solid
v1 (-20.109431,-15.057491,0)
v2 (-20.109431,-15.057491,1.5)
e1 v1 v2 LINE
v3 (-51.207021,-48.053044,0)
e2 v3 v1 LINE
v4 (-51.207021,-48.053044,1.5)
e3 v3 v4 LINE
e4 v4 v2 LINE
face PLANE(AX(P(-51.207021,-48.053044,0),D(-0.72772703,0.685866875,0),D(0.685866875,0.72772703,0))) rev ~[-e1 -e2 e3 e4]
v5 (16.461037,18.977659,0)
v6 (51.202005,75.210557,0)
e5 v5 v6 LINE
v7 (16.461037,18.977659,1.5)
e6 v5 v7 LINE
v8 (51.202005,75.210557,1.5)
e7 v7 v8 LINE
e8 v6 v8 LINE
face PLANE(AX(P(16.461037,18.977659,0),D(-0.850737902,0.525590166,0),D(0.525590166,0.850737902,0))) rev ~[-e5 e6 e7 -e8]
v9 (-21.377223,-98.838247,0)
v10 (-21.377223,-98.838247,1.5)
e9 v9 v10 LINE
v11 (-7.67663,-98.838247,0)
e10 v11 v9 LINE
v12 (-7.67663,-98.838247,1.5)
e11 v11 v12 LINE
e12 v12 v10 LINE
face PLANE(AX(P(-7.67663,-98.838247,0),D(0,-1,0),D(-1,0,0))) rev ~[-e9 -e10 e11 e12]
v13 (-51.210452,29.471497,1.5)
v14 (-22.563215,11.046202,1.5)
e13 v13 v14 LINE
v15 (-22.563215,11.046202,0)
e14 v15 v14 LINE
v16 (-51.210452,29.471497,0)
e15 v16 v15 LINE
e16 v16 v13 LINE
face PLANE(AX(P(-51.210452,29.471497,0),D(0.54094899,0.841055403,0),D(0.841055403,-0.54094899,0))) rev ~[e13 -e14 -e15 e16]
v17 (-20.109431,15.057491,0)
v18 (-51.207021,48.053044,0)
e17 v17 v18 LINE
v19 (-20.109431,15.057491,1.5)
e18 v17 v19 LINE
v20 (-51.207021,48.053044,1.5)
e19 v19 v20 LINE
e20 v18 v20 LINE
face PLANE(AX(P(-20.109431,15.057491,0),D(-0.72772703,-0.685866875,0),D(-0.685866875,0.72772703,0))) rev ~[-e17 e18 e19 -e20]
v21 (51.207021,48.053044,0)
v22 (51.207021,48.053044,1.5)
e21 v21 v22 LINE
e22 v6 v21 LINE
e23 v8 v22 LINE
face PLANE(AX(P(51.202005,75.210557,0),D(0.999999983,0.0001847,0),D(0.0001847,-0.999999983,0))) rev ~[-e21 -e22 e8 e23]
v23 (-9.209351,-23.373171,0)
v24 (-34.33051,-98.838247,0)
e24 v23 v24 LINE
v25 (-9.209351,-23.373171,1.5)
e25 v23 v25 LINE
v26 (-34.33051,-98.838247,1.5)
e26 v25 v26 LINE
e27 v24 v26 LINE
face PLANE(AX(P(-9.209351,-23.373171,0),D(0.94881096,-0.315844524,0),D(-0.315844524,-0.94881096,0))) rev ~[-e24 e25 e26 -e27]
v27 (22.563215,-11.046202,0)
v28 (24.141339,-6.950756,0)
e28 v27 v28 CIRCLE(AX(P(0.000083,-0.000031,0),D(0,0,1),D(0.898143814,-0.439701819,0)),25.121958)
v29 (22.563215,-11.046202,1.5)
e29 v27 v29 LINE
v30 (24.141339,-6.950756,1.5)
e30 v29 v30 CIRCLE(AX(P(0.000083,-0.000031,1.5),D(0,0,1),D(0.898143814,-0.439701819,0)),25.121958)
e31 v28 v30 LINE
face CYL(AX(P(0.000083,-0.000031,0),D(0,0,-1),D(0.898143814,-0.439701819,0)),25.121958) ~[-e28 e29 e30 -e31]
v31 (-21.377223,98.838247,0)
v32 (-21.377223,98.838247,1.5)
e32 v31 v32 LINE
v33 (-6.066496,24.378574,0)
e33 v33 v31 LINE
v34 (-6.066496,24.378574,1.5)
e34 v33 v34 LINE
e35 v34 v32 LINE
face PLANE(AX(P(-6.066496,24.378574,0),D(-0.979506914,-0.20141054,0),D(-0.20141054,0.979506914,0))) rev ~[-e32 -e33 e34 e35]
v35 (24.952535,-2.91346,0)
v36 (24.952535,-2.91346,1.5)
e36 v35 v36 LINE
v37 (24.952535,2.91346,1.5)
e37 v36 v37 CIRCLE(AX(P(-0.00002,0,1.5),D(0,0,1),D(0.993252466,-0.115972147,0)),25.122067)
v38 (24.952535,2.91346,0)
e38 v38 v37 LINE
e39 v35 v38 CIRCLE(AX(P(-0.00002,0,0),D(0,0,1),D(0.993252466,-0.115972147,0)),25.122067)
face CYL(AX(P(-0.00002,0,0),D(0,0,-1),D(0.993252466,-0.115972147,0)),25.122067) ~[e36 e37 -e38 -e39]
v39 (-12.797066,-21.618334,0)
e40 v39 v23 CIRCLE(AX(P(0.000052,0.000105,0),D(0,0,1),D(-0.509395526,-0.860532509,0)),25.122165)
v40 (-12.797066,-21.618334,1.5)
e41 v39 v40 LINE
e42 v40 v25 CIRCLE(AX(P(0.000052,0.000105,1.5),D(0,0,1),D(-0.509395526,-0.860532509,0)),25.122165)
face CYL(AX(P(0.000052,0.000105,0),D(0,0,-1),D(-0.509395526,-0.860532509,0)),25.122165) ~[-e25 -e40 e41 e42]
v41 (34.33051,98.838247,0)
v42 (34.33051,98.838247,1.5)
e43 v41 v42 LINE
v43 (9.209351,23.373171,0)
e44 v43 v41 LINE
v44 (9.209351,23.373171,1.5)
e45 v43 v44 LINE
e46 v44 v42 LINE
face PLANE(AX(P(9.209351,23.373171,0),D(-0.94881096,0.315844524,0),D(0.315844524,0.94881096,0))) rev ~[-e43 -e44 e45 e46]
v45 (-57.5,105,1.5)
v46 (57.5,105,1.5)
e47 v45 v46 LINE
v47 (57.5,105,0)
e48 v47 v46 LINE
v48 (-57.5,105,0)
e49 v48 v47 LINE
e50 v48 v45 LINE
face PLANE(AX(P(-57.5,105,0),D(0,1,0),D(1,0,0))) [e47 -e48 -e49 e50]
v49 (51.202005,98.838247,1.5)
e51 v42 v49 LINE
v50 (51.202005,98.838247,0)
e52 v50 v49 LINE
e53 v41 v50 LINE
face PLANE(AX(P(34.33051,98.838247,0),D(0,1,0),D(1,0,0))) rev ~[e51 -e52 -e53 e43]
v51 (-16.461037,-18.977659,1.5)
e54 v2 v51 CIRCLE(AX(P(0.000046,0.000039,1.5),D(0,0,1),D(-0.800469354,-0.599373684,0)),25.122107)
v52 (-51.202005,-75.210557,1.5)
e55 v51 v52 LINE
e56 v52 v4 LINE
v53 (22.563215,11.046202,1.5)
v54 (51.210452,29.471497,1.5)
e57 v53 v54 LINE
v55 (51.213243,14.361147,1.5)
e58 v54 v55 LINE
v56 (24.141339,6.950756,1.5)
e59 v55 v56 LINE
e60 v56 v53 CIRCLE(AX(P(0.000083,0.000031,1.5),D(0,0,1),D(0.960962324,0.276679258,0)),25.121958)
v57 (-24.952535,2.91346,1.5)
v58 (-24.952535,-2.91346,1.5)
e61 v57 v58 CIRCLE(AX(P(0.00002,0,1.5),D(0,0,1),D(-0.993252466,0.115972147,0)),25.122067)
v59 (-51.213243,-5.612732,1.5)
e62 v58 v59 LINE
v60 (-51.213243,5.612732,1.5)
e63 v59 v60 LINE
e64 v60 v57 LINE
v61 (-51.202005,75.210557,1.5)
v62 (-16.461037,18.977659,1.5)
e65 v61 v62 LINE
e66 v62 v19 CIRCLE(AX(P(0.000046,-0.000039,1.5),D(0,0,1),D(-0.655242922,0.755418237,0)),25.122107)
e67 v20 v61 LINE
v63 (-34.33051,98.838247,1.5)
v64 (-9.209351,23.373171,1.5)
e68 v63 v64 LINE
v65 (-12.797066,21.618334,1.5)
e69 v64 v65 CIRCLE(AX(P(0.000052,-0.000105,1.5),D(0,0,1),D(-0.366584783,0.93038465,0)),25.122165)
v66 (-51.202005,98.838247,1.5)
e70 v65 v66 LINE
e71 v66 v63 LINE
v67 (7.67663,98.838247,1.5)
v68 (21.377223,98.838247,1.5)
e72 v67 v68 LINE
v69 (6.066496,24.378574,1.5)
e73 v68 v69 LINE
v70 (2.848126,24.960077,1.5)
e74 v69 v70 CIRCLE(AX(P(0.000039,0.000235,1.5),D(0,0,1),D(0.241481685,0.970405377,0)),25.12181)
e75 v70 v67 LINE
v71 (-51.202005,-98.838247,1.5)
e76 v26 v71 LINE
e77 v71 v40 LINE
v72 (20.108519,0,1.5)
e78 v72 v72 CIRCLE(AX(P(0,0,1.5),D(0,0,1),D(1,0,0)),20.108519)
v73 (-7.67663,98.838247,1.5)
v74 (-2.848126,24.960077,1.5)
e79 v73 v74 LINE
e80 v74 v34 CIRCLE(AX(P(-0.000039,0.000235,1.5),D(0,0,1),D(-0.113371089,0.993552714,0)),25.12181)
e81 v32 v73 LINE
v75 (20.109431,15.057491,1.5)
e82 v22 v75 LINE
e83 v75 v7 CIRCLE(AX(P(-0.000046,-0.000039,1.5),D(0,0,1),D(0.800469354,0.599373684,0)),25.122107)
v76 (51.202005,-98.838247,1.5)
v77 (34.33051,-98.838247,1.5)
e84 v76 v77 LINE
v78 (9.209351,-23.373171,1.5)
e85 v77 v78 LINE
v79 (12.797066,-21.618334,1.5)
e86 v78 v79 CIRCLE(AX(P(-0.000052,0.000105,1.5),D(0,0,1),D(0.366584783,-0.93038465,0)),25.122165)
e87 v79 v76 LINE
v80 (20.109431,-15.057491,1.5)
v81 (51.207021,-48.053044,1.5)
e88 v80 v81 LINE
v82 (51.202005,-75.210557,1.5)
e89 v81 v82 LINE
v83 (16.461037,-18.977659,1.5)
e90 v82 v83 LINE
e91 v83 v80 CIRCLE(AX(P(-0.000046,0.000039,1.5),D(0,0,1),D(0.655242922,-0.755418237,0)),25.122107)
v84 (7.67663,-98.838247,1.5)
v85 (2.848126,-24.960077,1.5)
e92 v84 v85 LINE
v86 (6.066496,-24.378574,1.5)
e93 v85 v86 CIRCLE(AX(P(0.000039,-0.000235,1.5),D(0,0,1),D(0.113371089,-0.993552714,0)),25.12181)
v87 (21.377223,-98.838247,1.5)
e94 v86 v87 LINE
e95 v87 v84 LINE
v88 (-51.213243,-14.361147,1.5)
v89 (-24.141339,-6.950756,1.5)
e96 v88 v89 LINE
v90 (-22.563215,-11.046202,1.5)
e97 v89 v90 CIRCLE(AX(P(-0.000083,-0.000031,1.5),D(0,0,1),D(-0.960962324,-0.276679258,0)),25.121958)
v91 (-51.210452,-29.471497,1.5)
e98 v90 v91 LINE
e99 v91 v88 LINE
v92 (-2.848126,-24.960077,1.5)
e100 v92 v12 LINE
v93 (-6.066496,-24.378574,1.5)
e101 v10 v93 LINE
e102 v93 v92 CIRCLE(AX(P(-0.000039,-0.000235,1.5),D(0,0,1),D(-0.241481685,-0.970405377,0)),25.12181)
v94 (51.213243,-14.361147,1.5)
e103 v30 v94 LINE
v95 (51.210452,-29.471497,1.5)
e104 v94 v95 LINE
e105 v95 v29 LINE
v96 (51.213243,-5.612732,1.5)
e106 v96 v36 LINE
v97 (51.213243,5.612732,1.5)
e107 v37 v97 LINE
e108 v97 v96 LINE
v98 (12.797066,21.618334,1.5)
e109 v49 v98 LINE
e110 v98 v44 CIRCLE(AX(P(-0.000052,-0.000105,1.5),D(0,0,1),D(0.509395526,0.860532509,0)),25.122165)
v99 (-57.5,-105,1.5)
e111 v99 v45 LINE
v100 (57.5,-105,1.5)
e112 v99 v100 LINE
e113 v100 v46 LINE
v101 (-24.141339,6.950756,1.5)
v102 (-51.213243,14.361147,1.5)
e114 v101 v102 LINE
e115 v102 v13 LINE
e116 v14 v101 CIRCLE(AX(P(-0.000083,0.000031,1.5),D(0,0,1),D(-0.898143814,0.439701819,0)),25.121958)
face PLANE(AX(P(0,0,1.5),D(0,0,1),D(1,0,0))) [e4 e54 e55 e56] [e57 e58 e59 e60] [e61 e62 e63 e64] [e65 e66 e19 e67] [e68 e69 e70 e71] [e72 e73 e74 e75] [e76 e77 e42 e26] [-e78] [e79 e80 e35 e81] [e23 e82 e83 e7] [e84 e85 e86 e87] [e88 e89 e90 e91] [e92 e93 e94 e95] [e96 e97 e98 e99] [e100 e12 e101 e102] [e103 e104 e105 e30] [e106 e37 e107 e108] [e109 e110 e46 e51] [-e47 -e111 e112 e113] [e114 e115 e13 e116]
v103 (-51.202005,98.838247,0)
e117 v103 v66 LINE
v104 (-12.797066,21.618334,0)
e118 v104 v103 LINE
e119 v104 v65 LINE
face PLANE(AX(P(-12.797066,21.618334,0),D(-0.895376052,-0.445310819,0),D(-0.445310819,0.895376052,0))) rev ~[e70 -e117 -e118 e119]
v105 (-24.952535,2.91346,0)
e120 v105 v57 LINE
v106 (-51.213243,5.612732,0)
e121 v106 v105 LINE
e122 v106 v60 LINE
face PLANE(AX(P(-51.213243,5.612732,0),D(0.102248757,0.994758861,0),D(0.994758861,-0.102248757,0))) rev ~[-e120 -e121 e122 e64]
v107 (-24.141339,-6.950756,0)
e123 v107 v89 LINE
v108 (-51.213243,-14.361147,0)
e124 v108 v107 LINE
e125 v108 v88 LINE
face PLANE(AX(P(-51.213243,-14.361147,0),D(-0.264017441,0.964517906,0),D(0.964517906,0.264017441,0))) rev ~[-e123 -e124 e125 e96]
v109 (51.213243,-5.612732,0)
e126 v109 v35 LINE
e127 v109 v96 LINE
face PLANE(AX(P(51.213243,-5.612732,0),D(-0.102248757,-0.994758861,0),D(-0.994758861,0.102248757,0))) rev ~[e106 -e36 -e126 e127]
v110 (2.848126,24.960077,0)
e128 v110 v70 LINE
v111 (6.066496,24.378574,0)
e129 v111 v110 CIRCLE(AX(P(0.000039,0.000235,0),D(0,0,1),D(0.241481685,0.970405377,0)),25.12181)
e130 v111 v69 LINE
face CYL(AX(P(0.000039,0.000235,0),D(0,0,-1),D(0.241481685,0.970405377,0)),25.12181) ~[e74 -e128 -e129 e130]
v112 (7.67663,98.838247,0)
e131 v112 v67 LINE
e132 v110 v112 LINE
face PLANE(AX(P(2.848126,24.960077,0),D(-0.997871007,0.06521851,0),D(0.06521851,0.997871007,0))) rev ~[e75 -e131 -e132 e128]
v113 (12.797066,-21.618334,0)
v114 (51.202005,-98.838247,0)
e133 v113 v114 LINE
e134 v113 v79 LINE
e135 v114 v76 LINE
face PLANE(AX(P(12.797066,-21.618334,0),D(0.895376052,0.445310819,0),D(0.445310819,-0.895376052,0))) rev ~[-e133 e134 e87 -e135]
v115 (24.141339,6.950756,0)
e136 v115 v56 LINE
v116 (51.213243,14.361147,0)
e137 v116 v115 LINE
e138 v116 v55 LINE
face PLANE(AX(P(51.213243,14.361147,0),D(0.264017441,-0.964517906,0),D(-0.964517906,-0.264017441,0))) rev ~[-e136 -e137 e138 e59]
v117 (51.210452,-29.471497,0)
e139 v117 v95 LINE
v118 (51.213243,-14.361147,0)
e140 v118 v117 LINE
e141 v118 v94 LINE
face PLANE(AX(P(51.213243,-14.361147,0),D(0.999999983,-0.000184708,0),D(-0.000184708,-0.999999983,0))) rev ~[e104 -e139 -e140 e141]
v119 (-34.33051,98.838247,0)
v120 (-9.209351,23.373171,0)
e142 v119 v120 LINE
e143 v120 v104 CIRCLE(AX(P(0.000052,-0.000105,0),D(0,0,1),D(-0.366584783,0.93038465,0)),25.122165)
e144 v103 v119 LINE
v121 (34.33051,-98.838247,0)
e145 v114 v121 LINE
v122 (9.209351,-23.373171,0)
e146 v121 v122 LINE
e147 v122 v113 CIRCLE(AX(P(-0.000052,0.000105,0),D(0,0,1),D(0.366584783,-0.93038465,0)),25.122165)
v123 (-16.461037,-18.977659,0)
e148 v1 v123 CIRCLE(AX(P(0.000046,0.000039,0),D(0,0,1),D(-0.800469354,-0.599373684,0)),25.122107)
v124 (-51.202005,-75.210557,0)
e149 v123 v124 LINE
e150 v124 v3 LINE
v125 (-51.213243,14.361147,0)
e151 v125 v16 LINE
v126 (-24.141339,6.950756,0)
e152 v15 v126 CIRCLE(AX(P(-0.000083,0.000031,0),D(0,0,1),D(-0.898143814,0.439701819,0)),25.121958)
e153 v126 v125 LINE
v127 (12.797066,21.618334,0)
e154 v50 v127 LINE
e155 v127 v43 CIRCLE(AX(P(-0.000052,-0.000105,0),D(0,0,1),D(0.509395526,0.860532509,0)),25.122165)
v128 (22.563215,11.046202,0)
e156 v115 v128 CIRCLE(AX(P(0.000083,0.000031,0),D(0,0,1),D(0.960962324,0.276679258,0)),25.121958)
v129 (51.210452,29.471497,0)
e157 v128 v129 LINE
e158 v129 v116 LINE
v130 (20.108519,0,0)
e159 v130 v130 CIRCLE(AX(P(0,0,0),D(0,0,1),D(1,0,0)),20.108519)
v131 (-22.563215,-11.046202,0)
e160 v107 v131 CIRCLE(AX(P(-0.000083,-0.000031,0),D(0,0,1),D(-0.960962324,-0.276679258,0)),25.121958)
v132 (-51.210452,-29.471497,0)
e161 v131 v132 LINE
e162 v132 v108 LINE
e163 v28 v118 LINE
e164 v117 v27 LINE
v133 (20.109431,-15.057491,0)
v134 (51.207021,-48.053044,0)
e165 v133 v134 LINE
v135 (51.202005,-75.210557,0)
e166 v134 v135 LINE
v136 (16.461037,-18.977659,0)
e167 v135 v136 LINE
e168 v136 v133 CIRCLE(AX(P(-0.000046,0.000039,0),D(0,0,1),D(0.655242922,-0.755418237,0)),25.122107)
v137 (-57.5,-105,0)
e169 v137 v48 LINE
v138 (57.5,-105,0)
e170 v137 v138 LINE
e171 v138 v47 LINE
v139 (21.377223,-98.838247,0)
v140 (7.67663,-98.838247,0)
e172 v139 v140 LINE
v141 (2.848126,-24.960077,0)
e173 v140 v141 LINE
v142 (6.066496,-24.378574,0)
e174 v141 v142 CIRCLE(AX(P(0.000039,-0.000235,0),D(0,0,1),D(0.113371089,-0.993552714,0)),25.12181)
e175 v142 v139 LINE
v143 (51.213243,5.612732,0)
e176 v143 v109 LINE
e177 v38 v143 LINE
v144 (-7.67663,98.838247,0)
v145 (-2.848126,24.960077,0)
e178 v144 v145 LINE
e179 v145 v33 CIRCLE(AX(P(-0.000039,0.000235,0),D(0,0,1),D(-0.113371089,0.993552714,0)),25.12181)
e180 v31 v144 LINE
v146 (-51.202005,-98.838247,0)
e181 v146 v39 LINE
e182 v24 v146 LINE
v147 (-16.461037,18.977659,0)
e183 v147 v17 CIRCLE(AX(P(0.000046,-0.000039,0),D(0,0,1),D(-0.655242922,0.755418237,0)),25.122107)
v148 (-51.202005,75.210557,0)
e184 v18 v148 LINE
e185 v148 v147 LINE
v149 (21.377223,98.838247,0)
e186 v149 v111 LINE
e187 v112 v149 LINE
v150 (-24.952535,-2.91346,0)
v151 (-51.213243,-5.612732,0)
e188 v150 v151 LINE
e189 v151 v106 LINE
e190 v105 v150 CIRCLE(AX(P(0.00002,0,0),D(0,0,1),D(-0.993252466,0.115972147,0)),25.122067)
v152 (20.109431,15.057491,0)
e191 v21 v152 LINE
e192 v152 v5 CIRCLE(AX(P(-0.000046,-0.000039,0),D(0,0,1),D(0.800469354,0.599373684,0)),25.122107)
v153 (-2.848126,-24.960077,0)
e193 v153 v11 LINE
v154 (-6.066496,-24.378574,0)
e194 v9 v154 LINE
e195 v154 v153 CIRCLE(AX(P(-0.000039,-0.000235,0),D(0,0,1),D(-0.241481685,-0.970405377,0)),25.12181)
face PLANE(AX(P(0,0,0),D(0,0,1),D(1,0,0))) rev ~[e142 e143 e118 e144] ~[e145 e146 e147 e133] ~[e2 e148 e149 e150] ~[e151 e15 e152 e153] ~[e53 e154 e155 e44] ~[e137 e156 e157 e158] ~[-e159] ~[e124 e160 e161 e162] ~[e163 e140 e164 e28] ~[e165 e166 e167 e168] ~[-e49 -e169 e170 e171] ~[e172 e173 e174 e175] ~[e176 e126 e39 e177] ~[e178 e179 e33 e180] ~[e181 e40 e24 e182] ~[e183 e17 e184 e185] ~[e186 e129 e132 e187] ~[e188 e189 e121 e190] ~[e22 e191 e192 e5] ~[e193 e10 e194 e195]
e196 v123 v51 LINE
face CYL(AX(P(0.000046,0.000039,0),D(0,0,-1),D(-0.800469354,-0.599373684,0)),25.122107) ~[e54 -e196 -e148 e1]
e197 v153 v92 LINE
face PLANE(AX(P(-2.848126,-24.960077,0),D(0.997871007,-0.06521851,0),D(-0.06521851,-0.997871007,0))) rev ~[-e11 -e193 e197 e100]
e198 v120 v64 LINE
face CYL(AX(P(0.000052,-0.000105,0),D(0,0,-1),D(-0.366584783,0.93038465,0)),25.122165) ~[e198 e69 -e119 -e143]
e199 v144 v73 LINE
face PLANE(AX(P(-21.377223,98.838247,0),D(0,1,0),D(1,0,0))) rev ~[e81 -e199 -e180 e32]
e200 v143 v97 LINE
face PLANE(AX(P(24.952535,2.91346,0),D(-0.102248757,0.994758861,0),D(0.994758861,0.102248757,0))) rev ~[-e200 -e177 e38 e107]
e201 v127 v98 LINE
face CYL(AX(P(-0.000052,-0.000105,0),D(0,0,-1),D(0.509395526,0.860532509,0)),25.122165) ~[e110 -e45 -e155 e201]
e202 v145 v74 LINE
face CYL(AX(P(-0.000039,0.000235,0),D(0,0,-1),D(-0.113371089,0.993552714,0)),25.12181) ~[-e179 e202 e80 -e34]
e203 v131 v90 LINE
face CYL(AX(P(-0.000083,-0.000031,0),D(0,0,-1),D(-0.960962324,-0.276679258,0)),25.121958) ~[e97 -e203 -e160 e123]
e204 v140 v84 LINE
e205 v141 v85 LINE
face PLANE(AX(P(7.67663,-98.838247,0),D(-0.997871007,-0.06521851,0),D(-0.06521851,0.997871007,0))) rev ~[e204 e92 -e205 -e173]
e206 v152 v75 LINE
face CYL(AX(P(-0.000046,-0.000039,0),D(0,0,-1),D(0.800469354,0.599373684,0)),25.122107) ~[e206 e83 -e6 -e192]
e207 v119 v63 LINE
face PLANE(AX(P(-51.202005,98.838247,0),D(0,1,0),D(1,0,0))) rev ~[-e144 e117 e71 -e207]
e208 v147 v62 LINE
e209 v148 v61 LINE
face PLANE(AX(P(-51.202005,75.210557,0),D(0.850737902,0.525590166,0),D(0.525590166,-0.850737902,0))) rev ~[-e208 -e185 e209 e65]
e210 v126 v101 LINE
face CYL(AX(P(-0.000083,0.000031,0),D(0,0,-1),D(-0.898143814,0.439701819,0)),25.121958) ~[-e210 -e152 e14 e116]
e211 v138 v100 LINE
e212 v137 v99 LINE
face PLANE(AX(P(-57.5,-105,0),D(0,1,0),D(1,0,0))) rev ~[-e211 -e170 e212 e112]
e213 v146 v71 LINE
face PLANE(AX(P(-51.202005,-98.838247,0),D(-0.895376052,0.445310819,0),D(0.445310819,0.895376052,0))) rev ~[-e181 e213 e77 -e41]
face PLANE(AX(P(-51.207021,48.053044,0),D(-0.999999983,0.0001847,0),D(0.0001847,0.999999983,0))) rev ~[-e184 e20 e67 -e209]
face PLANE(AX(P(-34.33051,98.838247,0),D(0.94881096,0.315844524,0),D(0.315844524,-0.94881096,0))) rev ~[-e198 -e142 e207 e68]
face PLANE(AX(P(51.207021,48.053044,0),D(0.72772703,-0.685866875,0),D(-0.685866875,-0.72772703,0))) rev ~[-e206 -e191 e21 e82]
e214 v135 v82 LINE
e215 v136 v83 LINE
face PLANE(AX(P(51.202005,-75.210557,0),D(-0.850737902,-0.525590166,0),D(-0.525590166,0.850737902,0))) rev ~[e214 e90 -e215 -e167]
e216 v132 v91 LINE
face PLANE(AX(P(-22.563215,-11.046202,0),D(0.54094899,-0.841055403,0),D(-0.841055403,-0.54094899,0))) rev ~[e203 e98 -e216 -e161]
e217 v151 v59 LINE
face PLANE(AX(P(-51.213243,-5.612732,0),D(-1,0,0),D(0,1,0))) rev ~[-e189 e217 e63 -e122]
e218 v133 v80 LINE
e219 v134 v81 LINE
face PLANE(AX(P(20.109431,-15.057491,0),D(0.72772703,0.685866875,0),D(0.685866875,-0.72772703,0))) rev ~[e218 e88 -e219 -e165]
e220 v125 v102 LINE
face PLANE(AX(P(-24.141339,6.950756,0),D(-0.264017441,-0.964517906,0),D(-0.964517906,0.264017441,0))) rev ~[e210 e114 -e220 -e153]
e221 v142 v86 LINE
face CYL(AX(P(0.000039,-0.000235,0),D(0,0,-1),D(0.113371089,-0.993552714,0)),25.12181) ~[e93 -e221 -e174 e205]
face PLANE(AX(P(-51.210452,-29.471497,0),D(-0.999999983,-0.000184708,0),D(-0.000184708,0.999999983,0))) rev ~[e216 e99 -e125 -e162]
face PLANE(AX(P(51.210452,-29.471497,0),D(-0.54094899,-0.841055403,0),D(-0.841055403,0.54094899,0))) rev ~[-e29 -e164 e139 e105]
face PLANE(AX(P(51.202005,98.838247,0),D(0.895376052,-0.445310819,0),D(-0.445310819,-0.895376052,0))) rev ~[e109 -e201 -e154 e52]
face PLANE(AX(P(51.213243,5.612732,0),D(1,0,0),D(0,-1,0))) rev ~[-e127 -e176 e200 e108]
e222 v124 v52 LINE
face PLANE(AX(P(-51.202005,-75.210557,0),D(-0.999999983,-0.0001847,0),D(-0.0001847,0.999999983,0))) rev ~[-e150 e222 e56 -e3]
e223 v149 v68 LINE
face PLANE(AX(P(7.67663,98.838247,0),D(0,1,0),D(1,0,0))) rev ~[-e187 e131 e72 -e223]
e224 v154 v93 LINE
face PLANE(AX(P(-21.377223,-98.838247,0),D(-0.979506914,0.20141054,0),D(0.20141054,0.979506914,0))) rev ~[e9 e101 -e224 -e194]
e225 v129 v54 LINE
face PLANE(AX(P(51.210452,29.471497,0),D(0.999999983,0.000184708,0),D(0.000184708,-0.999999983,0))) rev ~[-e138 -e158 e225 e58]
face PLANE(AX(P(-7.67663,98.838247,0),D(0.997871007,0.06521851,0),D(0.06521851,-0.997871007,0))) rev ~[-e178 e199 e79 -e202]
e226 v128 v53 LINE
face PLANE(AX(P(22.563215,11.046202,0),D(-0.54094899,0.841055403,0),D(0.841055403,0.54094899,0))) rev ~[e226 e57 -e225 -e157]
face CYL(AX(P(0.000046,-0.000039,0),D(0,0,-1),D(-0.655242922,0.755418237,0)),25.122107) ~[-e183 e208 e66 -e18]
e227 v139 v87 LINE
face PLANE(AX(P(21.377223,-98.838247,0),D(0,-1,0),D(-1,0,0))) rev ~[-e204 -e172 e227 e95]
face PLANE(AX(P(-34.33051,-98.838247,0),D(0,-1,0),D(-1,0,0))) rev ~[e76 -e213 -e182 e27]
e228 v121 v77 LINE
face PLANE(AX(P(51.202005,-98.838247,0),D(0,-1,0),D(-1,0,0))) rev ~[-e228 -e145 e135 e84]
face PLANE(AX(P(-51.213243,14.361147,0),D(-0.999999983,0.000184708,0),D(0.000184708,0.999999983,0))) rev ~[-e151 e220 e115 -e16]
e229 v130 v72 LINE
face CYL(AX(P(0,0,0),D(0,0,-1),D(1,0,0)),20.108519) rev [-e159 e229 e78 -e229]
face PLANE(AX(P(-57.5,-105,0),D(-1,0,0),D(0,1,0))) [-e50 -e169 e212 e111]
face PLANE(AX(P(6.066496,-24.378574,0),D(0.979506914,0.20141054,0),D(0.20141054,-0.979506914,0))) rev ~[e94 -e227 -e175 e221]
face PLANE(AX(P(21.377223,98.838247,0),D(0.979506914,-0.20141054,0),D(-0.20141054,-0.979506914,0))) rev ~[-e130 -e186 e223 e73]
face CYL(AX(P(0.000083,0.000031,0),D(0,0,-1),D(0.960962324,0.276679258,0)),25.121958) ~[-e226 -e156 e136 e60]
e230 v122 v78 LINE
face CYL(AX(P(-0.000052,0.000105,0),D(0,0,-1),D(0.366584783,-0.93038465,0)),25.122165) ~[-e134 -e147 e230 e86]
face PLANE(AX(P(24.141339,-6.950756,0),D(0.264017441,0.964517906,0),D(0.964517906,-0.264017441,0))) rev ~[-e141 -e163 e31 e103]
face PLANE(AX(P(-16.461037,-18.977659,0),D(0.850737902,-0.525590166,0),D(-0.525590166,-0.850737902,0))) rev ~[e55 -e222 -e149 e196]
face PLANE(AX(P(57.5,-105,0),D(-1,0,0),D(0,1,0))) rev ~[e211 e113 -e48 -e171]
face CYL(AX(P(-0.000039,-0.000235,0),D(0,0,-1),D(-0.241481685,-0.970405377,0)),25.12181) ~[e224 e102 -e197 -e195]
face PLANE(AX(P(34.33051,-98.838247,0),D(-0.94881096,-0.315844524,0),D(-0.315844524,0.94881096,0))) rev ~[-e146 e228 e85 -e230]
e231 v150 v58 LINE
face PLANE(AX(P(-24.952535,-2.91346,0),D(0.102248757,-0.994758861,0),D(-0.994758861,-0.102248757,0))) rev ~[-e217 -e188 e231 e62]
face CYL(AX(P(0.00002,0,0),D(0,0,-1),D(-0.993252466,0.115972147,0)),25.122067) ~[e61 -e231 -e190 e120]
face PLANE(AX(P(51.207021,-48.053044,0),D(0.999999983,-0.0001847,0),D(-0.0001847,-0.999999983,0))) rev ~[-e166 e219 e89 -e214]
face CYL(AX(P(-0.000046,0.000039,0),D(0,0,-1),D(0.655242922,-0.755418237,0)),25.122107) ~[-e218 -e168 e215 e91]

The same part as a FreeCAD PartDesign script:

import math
import FreeCAD as App
import Part
import Sketcher


def add_polygon(sketch, points):
    """Adds a closed chain of lines whose ends are joined by coincident constraints."""
    first, n = sketch.GeometryCount, len(points)
    for a, b in zip(points, points[1:] + points[:1]):
        sketch.addGeometry(Part.LineSegment(App.Vector(*a, 0), App.Vector(*b, 0)), False)
    for i in range(n):
        sketch.addConstraint(Sketcher.Constraint("Coincident", first + i, 2, first + (i + 1) % n, 1))

doc = App.newDocument("Part")
body = doc.addObject("PartDesign::Body", "Body")

# Sketch on XY plane
sketch1 = doc.addObject("Sketcher::SketchObject", "Sketch")
body.addObject(sketch1)
sketch1.AttachmentSupport = (doc.XY_Plane, [""])
sketch1.MapMode = "FlatFace"
add_polygon(sketch1, [(-57.5, 105), (-57.5, -105), (57.5, -105), (57.5, 105)])  # lines 0-3
sketch1.addGeometry(Part.LineSegment(App.Vector(-34.33051, -98.838247, 0), App.Vector(-51.202005, -98.838247, 0)), False)  # 4
sketch1.addGeometry(Part.LineSegment(App.Vector(-51.202005, -98.838247, 0), App.Vector(-12.797066, -21.618334, 0)), False)  # 5
sketch1.addGeometry(Part.ArcOfCircle(Part.Circle(App.Vector(0.000052, 0.000105, 0), App.Vector(0, 0, 1), 25.122165), math.radians(-120.623574), math.radians(-111.505146)), False)  # 6
sketch1.addGeometry(Part.LineSegment(App.Vector(-9.209351, -23.373171, 0), App.Vector(-34.33051, -98.838247, 0)), False)  # 7
sketch1.addGeometry(Part.LineSegment(App.Vector(-7.67663, -98.838247, 0), App.Vector(-21.377223, -98.838247, 0)), False)  # 8
sketch1.addGeometry(Part.LineSegment(App.Vector(-21.377223, -98.838247, 0), App.Vector(-6.066496, -24.378574, 0)), False)  # 9
sketch1.addGeometry(Part.ArcOfCircle(Part.Circle(App.Vector(-0.000039, -0.000235, 0), App.Vector(0, 0, 1), 25.12181), math.radians(-103.974007), math.radians(-96.509681)), False)  # 10
sketch1.addGeometry(Part.LineSegment(App.Vector(-2.848126, -24.960077, 0), App.Vector(-7.67663, -98.838247, 0)), False)  # 11
sketch1.addGeometry(Part.LineSegment(App.Vector(-51.207021, -48.053044, 0), App.Vector(-20.109431, -15.057491, 0)), False)  # 12
sketch1.addGeometry(Part.ArcOfCircle(Part.Circle(App.Vector(0.000046, 0.000039, 0), App.Vector(0, 0, 1), 25.122107), math.radians(-143.174946), math.radians(-130.938072)), False)  # 13
sketch1.addGeometry(Part.LineSegment(App.Vector(-16.461037, -18.977659, 0), App.Vector(-51.202005, -75.210557, 0)), False)  # 14
sketch1.addGeometry(Part.LineSegment(App.Vector(-51.202005, -75.210557, 0), App.Vector(-51.207021, -48.053044, 0)), False)  # 15
sketch1.addGeometry(Part.LineSegment(App.Vector(-51.213243, -14.361147, 0), App.Vector(-24.141339, -6.950756, 0)), False)  # 16
sketch1.addGeometry(Part.ArcOfCircle(Part.Circle(App.Vector(-0.000083, -0.000031, 0), App.Vector(0, 0, 1), 25.121958), math.radians(-163.937888), math.radians(-153.915142)), False)  # 17
sketch1.addGeometry(Part.LineSegment(App.Vector(-22.563215, -11.046202, 0), App.Vector(-51.210452, -29.471497, 0)), False)  # 18
sketch1.addGeometry(Part.LineSegment(App.Vector(-51.210452, -29.471497, 0), App.Vector(-51.213243, -14.361147, 0)), False)  # 19
sketch1.addGeometry(Part.LineSegment(App.Vector(21.377223, -98.838247, 0), App.Vector(7.67663, -98.838247, 0)), False)  # 20
sketch1.addGeometry(Part.LineSegment(App.Vector(7.67663, -98.838247, 0), App.Vector(2.848126, -24.960077, 0)), False)  # 21
sketch1.addGeometry(Part.ArcOfCircle(Part.Circle(App.Vector(0.000039, -0.000235, 0), App.Vector(0, 0, 1), 25.12181), math.radians(-83.490319), math.radians(-76.025993)), False)  # 22
sketch1.addGeometry(Part.LineSegment(App.Vector(6.066496, -24.378574, 0), App.Vector(21.377223, -98.838247, 0)), False)  # 23
sketch1.addGeometry(Part.LineSegment(App.Vector(51.202005, -98.838247, 0), App.Vector(34.33051, -98.838247, 0)), False)  # 24
sketch1.addGeometry(Part.LineSegment(App.Vector(34.33051, -98.838247, 0), App.Vector(9.209351, -23.373171, 0)), False)  # 25
sketch1.addGeometry(Part.ArcOfCircle(Part.Circle(App.Vector(-0.000052, 0.000105, 0), App.Vector(0, 0, 1), 25.122165), math.radians(-68.494854), math.radians(-59.376426)), False)  # 26
sketch1.addGeometry(Part.LineSegment(App.Vector(12.797066, -21.618334, 0), App.Vector(51.202005, -98.838247, 0)), False)  # 27
sketch1.addGeometry(Part.LineSegment(App.Vector(51.207021, -48.053044, 0), App.Vector(51.202005, -75.210557, 0)), False)  # 28
sketch1.addGeometry(Part.LineSegment(App.Vector(51.202005, -75.210557, 0), App.Vector(16.461037, -18.977659, 0)), False)  # 29
sketch1.addGeometry(Part.ArcOfCircle(Part.Circle(App.Vector(-0.000046, 0.000039, 0), App.Vector(0, 0, 1), 25.122107), math.radians(-49.061928), math.radians(-36.825054)), False)  # 30
sketch1.addGeometry(Part.LineSegment(App.Vector(20.109431, -15.057491, 0), App.Vector(51.207021, -48.053044, 0)), False)  # 31
sketch1.addGeometry(Part.LineSegment(App.Vector(51.213243, -14.361147, 0), App.Vector(51.210452, -29.471497, 0)), False)  # 32
sketch1.addGeometry(Part.LineSegment(App.Vector(51.210452, -29.471497, 0), App.Vector(22.563215, -11.046202, 0)), False)  # 33
sketch1.addGeometry(Part.ArcOfCircle(Part.Circle(App.Vector(0.000083, -0.000031, 0), App.Vector(0, 0, 1), 25.121958), math.radians(-26.084858), math.radians(-16.062112)), False)  # 34
sketch1.addGeometry(Part.LineSegment(App.Vector(24.141339, -6.950756, 0), App.Vector(51.213243, -14.361147, 0)), False)  # 35
sketch1.addGeometry(Part.LineSegment(App.Vector(-51.213243, 5.612732, 0), App.Vector(-24.952535, 2.91346, 0)), False)  # 36
sketch1.addGeometry(Part.ArcOfCircle(Part.Circle(App.Vector(0.00002, 0, 0), App.Vector(0, 0, 1), 25.122067), math.radians(173.3403), math.radians(186.6597)), False)  # 37
sketch1.addGeometry(Part.LineSegment(App.Vector(-24.952535, -2.91346, 0), App.Vector(-51.213243, -5.612732, 0)), False)  # 38
sketch1.addGeometry(Part.LineSegment(App.Vector(-51.213243, -5.612732, 0), App.Vector(-51.213243, 5.612732, 0)), False)  # 39
sketch1.addGeometry(Part.LineSegment(App.Vector(-51.213243, 14.361147, 0), App.Vector(-51.210452, 29.471497, 0)), False)  # 40
sketch1.addGeometry(Part.LineSegment(App.Vector(-51.210452, 29.471497, 0), App.Vector(-22.563215, 11.046202, 0)), False)  # 41
sketch1.addGeometry(Part.ArcOfCircle(Part.Circle(App.Vector(-0.000083, 0.000031, 0), App.Vector(0, 0, 1), 25.121958), math.radians(153.915142), math.radians(163.937888)), False)  # 42
sketch1.addGeometry(Part.LineSegment(App.Vector(-24.141339, 6.950756, 0), App.Vector(-51.213243, 14.361147, 0)), False)  # 43
sketch1.addGeometry(Part.LineSegment(App.Vector(-51.207021, 48.053044, 0), App.Vector(-51.202005, 75.210557, 0)), False)  # 44
sketch1.addGeometry(Part.LineSegment(App.Vector(-51.202005, 75.210557, 0), App.Vector(-16.461037, 18.977659, 0)), False)  # 45
sketch1.addGeometry(Part.ArcOfCircle(Part.Circle(App.Vector(0.000046, -0.000039, 0), App.Vector(0, 0, 1), 25.122107), math.radians(130.938072), math.radians(143.174946)), False)  # 46
sketch1.addGeometry(Part.LineSegment(App.Vector(-20.109431, 15.057491, 0), App.Vector(-51.207021, 48.053044, 0)), False)  # 47
sketch1.addGeometry(Part.LineSegment(App.Vector(-51.202005, 98.838247, 0), App.Vector(-34.33051, 98.838247, 0)), False)  # 48
sketch1.addGeometry(Part.LineSegment(App.Vector(-34.33051, 98.838247, 0), App.Vector(-9.209351, 23.373171, 0)), False)  # 49
sketch1.addGeometry(Part.ArcOfCircle(Part.Circle(App.Vector(0.000052, -0.000105, 0), App.Vector(0, 0, 1), 25.122165), math.radians(111.505146), math.radians(120.623574)), False)  # 50
sketch1.addGeometry(Part.LineSegment(App.Vector(-12.797066, 21.618334, 0), App.Vector(-51.202005, 98.838247, 0)), False)  # 51
sketch1.addGeometry(Part.LineSegment(App.Vector(-21.377223, 98.838247, 0), App.Vector(-7.67663, 98.838247, 0)), False)  # 52
sketch1.addGeometry(Part.LineSegment(App.Vector(-7.67663, 98.838247, 0), App.Vector(-2.848126, 24.960077, 0)), False)  # 53
sketch1.addGeometry(Part.ArcOfCircle(Part.Circle(App.Vector(-0.000039, 0.000235, 0), App.Vector(0, 0, 1), 25.12181), math.radians(96.509681), math.radians(103.974007)), False)  # 54
sketch1.addGeometry(Part.LineSegment(App.Vector(-6.066496, 24.378574, 0), App.Vector(-21.377223, 98.838247, 0)), False)  # 55
sketch1.addGeometry(Part.Circle(App.Vector(0, 0, 0), App.Vector(0, 0, 1), 20.108519), False)  # 56
sketch1.addGeometry(Part.LineSegment(App.Vector(51.213243, -5.612732, 0), App.Vector(24.952535, -2.91346, 0)), False)  # 57
sketch1.addGeometry(Part.ArcOfCircle(Part.Circle(App.Vector(-0.00002, 0, 0), App.Vector(0, 0, 1), 25.122067), math.radians(-6.6597), math.radians(6.6597)), False)  # 58
sketch1.addGeometry(Part.LineSegment(App.Vector(24.952535, 2.91346, 0), App.Vector(51.213243, 5.612732, 0)), False)  # 59
sketch1.addGeometry(Part.LineSegment(App.Vector(51.213243, 5.612732, 0), App.Vector(51.213243, -5.612732, 0)), False)  # 60
sketch1.addGeometry(Part.LineSegment(App.Vector(51.213243, 14.361147, 0), App.Vector(24.141339, 6.950756, 0)), False)  # 61
sketch1.addGeometry(Part.ArcOfCircle(Part.Circle(App.Vector(0.000083, 0.000031, 0), App.Vector(0, 0, 1), 25.121958), math.radians(16.062112), math.radians(26.084858)), False)  # 62
sketch1.addGeometry(Part.LineSegment(App.Vector(22.563215, 11.046202, 0), App.Vector(51.210452, 29.471497, 0)), False)  # 63
sketch1.addGeometry(Part.LineSegment(App.Vector(51.210452, 29.471497, 0), App.Vector(51.213243, 14.361147, 0)), False)  # 64
sketch1.addGeometry(Part.LineSegment(App.Vector(51.207021, 48.053044, 0), App.Vector(20.109431, 15.057491, 0)), False)  # 65
sketch1.addGeometry(Part.ArcOfCircle(Part.Circle(App.Vector(-0.000046, -0.000039, 0), App.Vector(0, 0, 1), 25.122107), math.radians(36.825054), math.radians(49.061928)), False)  # 66
sketch1.addGeometry(Part.LineSegment(App.Vector(16.461037, 18.977659, 0), App.Vector(51.202005, 75.210557, 0)), False)  # 67
sketch1.addGeometry(Part.LineSegment(App.Vector(51.202005, 75.210557, 0), App.Vector(51.207021, 48.053044, 0)), False)  # 68
sketch1.addGeometry(Part.LineSegment(App.Vector(21.377223, 98.838247, 0), App.Vector(6.066496, 24.378574, 0)), False)  # 69
sketch1.addGeometry(Part.ArcOfCircle(Part.Circle(App.Vector(0.000039, 0.000235, 0), App.Vector(0, 0, 1), 25.12181), math.radians(76.025993), math.radians(83.490319)), False)  # 70
sketch1.addGeometry(Part.LineSegment(App.Vector(2.848126, 24.960077, 0), App.Vector(7.67663, 98.838247, 0)), False)  # 71
sketch1.addGeometry(Part.LineSegment(App.Vector(7.67663, 98.838247, 0), App.Vector(21.377223, 98.838247, 0)), False)  # 72
sketch1.addGeometry(Part.LineSegment(App.Vector(51.202005, 98.838247, 0), App.Vector(12.797066, 21.618334, 0)), False)  # 73
sketch1.addGeometry(Part.ArcOfCircle(Part.Circle(App.Vector(-0.000052, -0.000105, 0), App.Vector(0, 0, 1), 25.122165), math.radians(59.376426), math.radians(68.494854)), False)  # 74
sketch1.addGeometry(Part.LineSegment(App.Vector(9.209351, 23.373171, 0), App.Vector(34.33051, 98.838247, 0)), False)  # 75
sketch1.addGeometry(Part.LineSegment(App.Vector(34.33051, 98.838247, 0), App.Vector(51.202005, 98.838247, 0)), False)  # 76
sketch1.addConstraint(Sketcher.Constraint("Coincident", 4, 2, 5, 1))
sketch1.addConstraint(Sketcher.Constraint("Coincident", 5, 2, 6, 1))
sketch1.addConstraint(Sketcher.Constraint("Coincident", 6, 2, 7, 1))
sketch1.addConstraint(Sketcher.Constraint("Coincident", 7, 2, 4, 1))
sketch1.addConstraint(Sketcher.Constraint("Coincident", 8, 2, 9, 1))
sketch1.addConstraint(Sketcher.Constraint("Coincident", 9, 2, 10, 1))
sketch1.addConstraint(Sketcher.Constraint("Coincident", 10, 2, 11, 1))
sketch1.addConstraint(Sketcher.Constraint("Coincident", 11, 2, 8, 1))
sketch1.addConstraint(Sketcher.Constraint("Coincident", 12, 2, 13, 1))
sketch1.addConstraint(Sketcher.Constraint("Coincident", 13, 2, 14, 1))
sketch1.addConstraint(Sketcher.Constraint("Coincident", 14, 2, 15, 1))
sketch1.addConstraint(Sketcher.Constraint("Coincident", 15, 2, 12, 1))
sketch1.addConstraint(Sketcher.Constraint("Coincident", 16, 2, 17, 1))
sketch1.addConstraint(Sketcher.Constraint("Coincident", 17, 2, 18, 1))
sketch1.addConstraint(Sketcher.Constraint("Coincident", 18, 2, 19, 1))
sketch1.addConstraint(Sketcher.Constraint("Coincident", 19, 2, 16, 1))
sketch1.addConstraint(Sketcher.Constraint("Coincident", 20, 2, 21, 1))
sketch1.addConstraint(Sketcher.Constraint("Coincident", 21, 2, 22, 1))
sketch1.addConstraint(Sketcher.Constraint("Coincident", 22, 2, 23, 1))
sketch1.addConstraint(Sketcher.Constraint("Coincident", 23, 2, 20, 1))
sketch1.addConstraint(Sketcher.Constraint("Coincident", 24, 2, 25, 1))
sketch1.addConstraint(Sketcher.Constraint("Coincident", 25, 2, 26, 1))
sketch1.addConstraint(Sketcher.Constraint("Coincident", 26, 2, 27, 1))
sketch1.addConstraint(Sketcher.Constraint("Coincident", 27, 2, 24, 1))
sketch1.addConstraint(Sketcher.Constraint("Coincident", 28, 2, 29, 1))
sketch1.addConstraint(Sketcher.Constraint("Coincident", 29, 2, 30, 1))
sketch1.addConstraint(Sketcher.Constraint("Coincident", 30, 2, 31, 1))
sketch1.addConstraint(Sketcher.Constraint("Coincident", 31, 2, 28, 1))
sketch1.addConstraint(Sketcher.Constraint("Coincident", 32, 2, 33, 1))
sketch1.addConstraint(Sketcher.Constraint("Coincident", 33, 2, 34, 1))
sketch1.addConstraint(Sketcher.Constraint("Coincident", 34, 2, 35, 1))
sketch1.addConstraint(Sketcher.Constraint("Coincident", 35, 2, 32, 1))
sketch1.addConstraint(Sketcher.Constraint("Coincident", 36, 2, 37, 1))
sketch1.addConstraint(Sketcher.Constraint("Coincident", 37, 2, 38, 1))
sketch1.addConstraint(Sketcher.Constraint("Coincident", 38, 2, 39, 1))
sketch1.addConstraint(Sketcher.Constraint("Coincident", 39, 2, 36, 1))
sketch1.addConstraint(Sketcher.Constraint("Coincident", 40, 2, 41, 1))
sketch1.addConstraint(Sketcher.Constraint("Coincident", 41, 2, 42, 1))
sketch1.addConstraint(Sketcher.Constraint("Coincident", 42, 2, 43, 1))
sketch1.addConstraint(Sketcher.Constraint("Coincident", 43, 2, 40, 1))
sketch1.addConstraint(Sketcher.Constraint("Coincident", 44, 2, 45, 1))
sketch1.addConstraint(Sketcher.Constraint("Coincident", 45, 2, 46, 1))
sketch1.addConstraint(Sketcher.Constraint("Coincident", 46, 2, 47, 1))
sketch1.addConstraint(Sketcher.Constraint("Coincident", 47, 2, 44, 1))
sketch1.addConstraint(Sketcher.Constraint("Coincident", 48, 2, 49, 1))
sketch1.addConstraint(Sketcher.Constraint("Coincident", 49, 2, 50, 1))
sketch1.addConstraint(Sketcher.Constraint("Coincident", 50, 2, 51, 1))
sketch1.addConstraint(Sketcher.Constraint("Coincident", 51, 2, 48, 1))
sketch1.addConstraint(Sketcher.Constraint("Coincident", 52, 2, 53, 1))
sketch1.addConstraint(Sketcher.Constraint("Coincident", 53, 2, 54, 1))
sketch1.addConstraint(Sketcher.Constraint("Coincident", 54, 2, 55, 1))
sketch1.addConstraint(Sketcher.Constraint("Coincident", 55, 2, 52, 1))
sketch1.addConstraint(Sketcher.Constraint("Coincident", 57, 2, 58, 1))
sketch1.addConstraint(Sketcher.Constraint("Coincident", 58, 2, 59, 1))
sketch1.addConstraint(Sketcher.Constraint("Coincident", 59, 2, 60, 1))
sketch1.addConstraint(Sketcher.Constraint("Coincident", 60, 2, 57, 1))
sketch1.addConstraint(Sketcher.Constraint("Coincident", 61, 2, 62, 1))
sketch1.addConstraint(Sketcher.Constraint("Coincident", 62, 2, 63, 1))
sketch1.addConstraint(Sketcher.Constraint("Coincident", 63, 2, 64, 1))
sketch1.addConstraint(Sketcher.Constraint("Coincident", 64, 2, 61, 1))
sketch1.addConstraint(Sketcher.Constraint("Coincident", 65, 2, 66, 1))
sketch1.addConstraint(Sketcher.Constraint("Coincident", 66, 2, 67, 1))
sketch1.addConstraint(Sketcher.Constraint("Coincident", 67, 2, 68, 1))
sketch1.addConstraint(Sketcher.Constraint("Coincident", 68, 2, 65, 1))
sketch1.addConstraint(Sketcher.Constraint("Coincident", 69, 2, 70, 1))
sketch1.addConstraint(Sketcher.Constraint("Coincident", 70, 2, 71, 1))
sketch1.addConstraint(Sketcher.Constraint("Coincident", 71, 2, 72, 1))
sketch1.addConstraint(Sketcher.Constraint("Coincident", 72, 2, 69, 1))
sketch1.addConstraint(Sketcher.Constraint("Coincident", 73, 2, 74, 1))
sketch1.addConstraint(Sketcher.Constraint("Coincident", 74, 2, 75, 1))
sketch1.addConstraint(Sketcher.Constraint("Coincident", 75, 2, 76, 1))
sketch1.addConstraint(Sketcher.Constraint("Coincident", 76, 2, 73, 1))
sketch1.addConstraint(Sketcher.Constraint("Vertical", 0))
sketch1.addConstraint(Sketcher.Constraint("Horizontal", 1))
sketch1.addConstraint(Sketcher.Constraint("Vertical", 2))
sketch1.addConstraint(Sketcher.Constraint("Horizontal", 3))
sketch1.addConstraint(Sketcher.Constraint("Horizontal", 4))
sketch1.addConstraint(Sketcher.Constraint("Horizontal", 8))
sketch1.addConstraint(Sketcher.Constraint("Horizontal", 20))
sketch1.addConstraint(Sketcher.Constraint("Horizontal", 24))
sketch1.addConstraint(Sketcher.Constraint("Vertical", 39))
sketch1.addConstraint(Sketcher.Constraint("Horizontal", 48))
sketch1.addConstraint(Sketcher.Constraint("Horizontal", 52))
sketch1.addConstraint(Sketcher.Constraint("Vertical", 60))
sketch1.addConstraint(Sketcher.Constraint("Horizontal", 72))
sketch1.addConstraint(Sketcher.Constraint("Horizontal", 76))
sketch1.addConstraint(Sketcher.Constraint("Coincident", 56, 3, -1, 1))
sketch1.addConstraint(Sketcher.Constraint("Equal", 10, 22))
sketch1.addConstraint(Sketcher.Constraint("Equal", 6, 26))
sketch1.addConstraint(Sketcher.Constraint("Equal", 13, 30))
sketch1.addConstraint(Sketcher.Constraint("Equal", 17, 34))
sketch1.addConstraint(Sketcher.Constraint("Equal", 34, 42))
sketch1.addConstraint(Sketcher.Constraint("Equal", 30, 46))
sketch1.addConstraint(Sketcher.Constraint("Equal", 26, 50))
sketch1.addConstraint(Sketcher.Constraint("Equal", 22, 54))
sketch1.addConstraint(Sketcher.Constraint("Equal", 37, 58))
sketch1.addConstraint(Sketcher.Constraint("Equal", 42, 62))
sketch1.addConstraint(Sketcher.Constraint("Equal", 46, 66))
sketch1.addConstraint(Sketcher.Constraint("Equal", 54, 70))
sketch1.addConstraint(Sketcher.Constraint("Equal", 50, 74))
sketch1.addConstraint(Sketcher.Constraint("Symmetric", 34, 3, 42, 3, -1, 1))
sketch1.addConstraint(Sketcher.Constraint("Symmetric", 30, 3, 46, 3, -1, 1))
sketch1.addConstraint(Sketcher.Constraint("Symmetric", 26, 3, 50, 3, -1, 1))
sketch1.addConstraint(Sketcher.Constraint("Symmetric", 22, 3, 54, 3, -1, 1))
sketch1.addConstraint(Sketcher.Constraint("Symmetric", 37, 3, 58, 3, -1, 1))
sketch1.addConstraint(Sketcher.Constraint("Symmetric", 17, 3, 62, 3, -1, 1))
sketch1.addConstraint(Sketcher.Constraint("Symmetric", 13, 3, 66, 3, -1, 1))
sketch1.addConstraint(Sketcher.Constraint("Symmetric", 10, 3, 70, 3, -1, 1))
sketch1.addConstraint(Sketcher.Constraint("Symmetric", 6, 3, 74, 3, -1, 1))
sketch1.addConstraint(Sketcher.Constraint("Symmetric", 0, 2, 2, 2, -1, 1))
sketch1.addConstraint(Sketcher.Constraint("Symmetric", 32, 2, 40, 2, -1, 1))
sketch1.addConstraint(Sketcher.Constraint("Symmetric", 35, 2, 43, 2, -1, 1))
sketch1.addConstraint(Sketcher.Constraint("Symmetric", 28, 2, 44, 2, -1, 1))
sketch1.addConstraint(Sketcher.Constraint("Symmetric", 31, 2, 47, 2, -1, 1))
sketch1.addConstraint(Sketcher.Constraint("Symmetric", 24, 2, 48, 2, -1, 1))
sketch1.addConstraint(Sketcher.Constraint("Symmetric", 20, 2, 52, 2, -1, 1))
sketch1.addConstraint(Sketcher.Constraint("Symmetric", 38, 2, 59, 2, -1, 1))
sketch1.addConstraint(Sketcher.Constraint("Symmetric", 18, 2, 63, 2, -1, 1))
sketch1.addConstraint(Sketcher.Constraint("Symmetric", 19, 2, 64, 2, -1, 1))
sketch1.addConstraint(Sketcher.Constraint("Symmetric", 14, 2, 67, 2, -1, 1))
sketch1.addConstraint(Sketcher.Constraint("Symmetric", 15, 2, 68, 2, -1, 1))
sketch1.addConstraint(Sketcher.Constraint("Symmetric", 11, 2, 71, 2, -1, 1))
sketch1.addConstraint(Sketcher.Constraint("Symmetric", 7, 2, 75, 2, -1, 1))
sketch1.addConstraint(Sketcher.Constraint("Symmetric", 10, 3, 22, 3, -2))
sketch1.addConstraint(Sketcher.Constraint("Symmetric", 6, 3, 26, 3, -2))
sketch1.addConstraint(Sketcher.Constraint("Symmetric", 13, 3, 30, 3, -2))
sketch1.addConstraint(Sketcher.Constraint("Symmetric", 17, 3, 34, 3, -2))
sketch1.addConstraint(Sketcher.Constraint("Symmetric", 11, 2, 20, 2, -2))
sketch1.addConstraint(Sketcher.Constraint("Symmetric", 7, 2, 24, 2, -2))
sketch1.addConstraint(Sketcher.Constraint("Symmetric", 14, 2, 28, 2, -2))
sketch1.addConstraint(Sketcher.Constraint("Symmetric", 15, 2, 31, 2, -2))
sketch1.addConstraint(Sketcher.Constraint("Symmetric", 18, 2, 32, 2, -2))
sketch1.addConstraint(Sketcher.Constraint("Symmetric", 19, 2, 35, 2, -2))
sketch1.addConstraint(Sketcher.Constraint("Symmetric", 37, 2, 57, 2, -2))
sketch1.addConstraint(Sketcher.Constraint("Parallel", 15, 19))
sketch1.addConstraint(Sketcher.Constraint("Parallel", 33, 41))
sketch1.addConstraint(Sketcher.Constraint("Parallel", 35, 43))
sketch1.addConstraint(Sketcher.Constraint("Parallel", 29, 45))
sketch1.addConstraint(Sketcher.Constraint("Parallel", 31, 47))
sketch1.addConstraint(Sketcher.Constraint("Parallel", 25, 49))
sketch1.addConstraint(Sketcher.Constraint("Parallel", 27, 51))
sketch1.addConstraint(Sketcher.Constraint("Parallel", 21, 53))
sketch1.addConstraint(Sketcher.Constraint("Parallel", 23, 55))
sketch1.addConstraint(Sketcher.Constraint("Parallel", 36, 57))
sketch1.addConstraint(Sketcher.Constraint("Parallel", 38, 59))
sketch1.addConstraint(Sketcher.Constraint("Parallel", 16, 61))
sketch1.addConstraint(Sketcher.Constraint("Parallel", 18, 63))
sketch1.addConstraint(Sketcher.Constraint("Parallel", 12, 65))
sketch1.addConstraint(Sketcher.Constraint("Parallel", 14, 67))
sketch1.addConstraint(Sketcher.Constraint("Parallel", 9, 69))
sketch1.addConstraint(Sketcher.Constraint("Parallel", 11, 71))
sketch1.addConstraint(Sketcher.Constraint("Parallel", 5, 73))
sketch1.addConstraint(Sketcher.Constraint("Parallel", 7, 75))
sketch1.addConstraint(Sketcher.Constraint("Horizontal", 7, 2, 8, 2))
sketch1.addConstraint(Sketcher.Constraint("Horizontal", 10, 2, 21, 2))
sketch1.addConstraint(Sketcher.Constraint("Horizontal", 9, 2, 22, 2))
sketch1.addConstraint(Sketcher.Constraint("Horizontal", 6, 2, 25, 2))
sketch1.addConstraint(Sketcher.Constraint("Horizontal", 5, 2, 26, 2))
sketch1.addConstraint(Sketcher.Constraint("Horizontal", 13, 2, 29, 2))
sketch1.addConstraint(Sketcher.Constraint("Horizontal", 12, 2, 30, 2))
sketch1.addConstraint(Sketcher.Constraint("Horizontal", 17, 2, 33, 2))
sketch1.addConstraint(Sketcher.Constraint("Horizontal", 16, 2, 34, 2))
sketch1.addConstraint(Sketcher.Constraint("Horizontal", 36, 2, 58, 2))
sketch1.addConstraint(Sketcher.Constraint("Horizontal", 39, 2, 59, 2))
sketch1.addConstraint(Sketcher.Constraint("Horizontal", 54, 2, 69, 2))
sketch1.addConstraint(Sketcher.Constraint("Horizontal", 50, 2, 73, 2))
sketch1.addConstraint(Sketcher.Constraint("Vertical", 4, 2, 14, 2))
sketch1.addConstraint(Sketcher.Constraint("Vertical", 27, 2, 28, 2))
sketch1.addConstraint(Sketcher.Constraint("Vertical", 19, 2, 38, 2))
sketch1.addConstraint(Sketcher.Constraint("Vertical", 5, 2, 50, 2))
sketch1.addConstraint(Sketcher.Constraint("Vertical", 9, 2, 54, 2))
sketch1.addConstraint(Sketcher.Constraint("Vertical", 8, 2, 55, 2))
sketch1.addConstraint(Sketcher.Constraint("DistanceX", 1, 1, 1, 2, 115.0))
sketch1.addConstraint(Sketcher.Constraint("DistanceY", 0, 2, 0, 1, 210.0))
sketch1.addConstraint(Sketcher.Constraint("Diameter", 56, 40.217038))
sketch1.addConstraint(Sketcher.Constraint("Radius", 10, 25.12181))
sketch1.addConstraint(Sketcher.Constraint("Radius", 17, 25.121958))
sketch1.addConstraint(Sketcher.Constraint("Radius", 6, 25.122165))
sketch1.addConstraint(Sketcher.Constraint("Radius", 13, 25.122107))
sketch1.addConstraint(Sketcher.Constraint("Radius", 37, 25.122067))
sketch1.addConstraint(Sketcher.Constraint("DistanceY", 17, 2, -1, 1, 11.046202))
sketch1.addConstraint(Sketcher.Constraint("Distance", 7, 79.536472))
sketch1.addConstraint(Sketcher.Constraint("Distance", 11, 74.035792))
sketch1.addConstraint(Sketcher.Constraint("Distance", 14, 66.098969))
sketch1.addConstraint(Sketcher.Constraint("Distance", 16, 28.067809))
sketch1.addConstraint(Sketcher.Constraint("Distance", 18, 34.061058))
sketch1.addConstraint(Sketcher.Constraint("Distance", 19, 15.11035))
sketch1.addConstraint(Sketcher.Constraint("Distance", 36, 26.399069))
sketch1.addConstraint(Sketcher.Constraint("DistanceX", 4, 2, 4, 1, 16.871495))
sketch1.addConstraint(Sketcher.Constraint("DistanceX", 8, 2, 8, 1, 13.700593))
sketch1.addConstraint(Sketcher.Constraint("DistanceY", 39, 1, 39, 2, 11.225464))
sketch1.addConstraint(Sketcher.Constraint("DistanceX", 6, 2, -1, 1, 9.209351))
sketch1.addConstraint(Sketcher.Constraint("DistanceY", 6, 2, -1, 1, 23.373171))
sketch1.addConstraint(Sketcher.Constraint("DistanceX", 7, 2, -1, 1, 34.33051))
sketch1.addConstraint(Sketcher.Constraint("DistanceX", 11, 2, -1, 1, 7.67663))
sketch1.addConstraint(Sketcher.Constraint("DistanceX", 12, 2, -1, 1, 20.109431))
sketch1.addConstraint(Sketcher.Constraint("DistanceY", 12, 2, -1, 1, 15.057491))
sketch1.addConstraint(Sketcher.Constraint("DistanceY", 13, 2, -1, 1, 18.977659))
sketch1.addConstraint(Sketcher.Constraint("DistanceX", 15, 2, -1, 1, 51.207021))
sketch1.addConstraint(Sketcher.Constraint("DistanceX", 16, 2, -1, 1, 24.141339))
sketch1.addConstraint(Sketcher.Constraint("DistanceX", 18, 2, -1, 1, 51.210452))
sketch1.addConstraint(Sketcher.Constraint("DistanceY", -1, 1, 36, 2, 2.91346))
sketch1.addConstraint(Sketcher.Constraint("Distance", 5, 86.242996))
sketch1.addConstraint(Sketcher.Constraint("Distance", 9, 76.017506))
sketch1.addConstraint(Sketcher.Constraint("Distance", 12, 45.340563))
sketch1.addConstraint(Sketcher.Constraint("Distance", 15, 27.157513))
sketch1.addConstraint(Sketcher.Constraint("DistanceY", -1, 1, 6, 3, 0.000105))
sketch1.addConstraint(Sketcher.Constraint("DistanceY", 10, 3, -1, 1, 0.000235))
sketch1.addConstraint(Sketcher.Constraint("DistanceX", 9, 2, -1, 1, 6.066496))
sketch1.addConstraint(Sketcher.Constraint("DistanceY", 16, 2, -1, 1, 6.950756))
pad1 = doc.addObject("PartDesign::Pad", "Pad")
body.addObject(pad1)
pad1.Profile = sketch1
pad1.Length = 1.5

doc.recompute()
